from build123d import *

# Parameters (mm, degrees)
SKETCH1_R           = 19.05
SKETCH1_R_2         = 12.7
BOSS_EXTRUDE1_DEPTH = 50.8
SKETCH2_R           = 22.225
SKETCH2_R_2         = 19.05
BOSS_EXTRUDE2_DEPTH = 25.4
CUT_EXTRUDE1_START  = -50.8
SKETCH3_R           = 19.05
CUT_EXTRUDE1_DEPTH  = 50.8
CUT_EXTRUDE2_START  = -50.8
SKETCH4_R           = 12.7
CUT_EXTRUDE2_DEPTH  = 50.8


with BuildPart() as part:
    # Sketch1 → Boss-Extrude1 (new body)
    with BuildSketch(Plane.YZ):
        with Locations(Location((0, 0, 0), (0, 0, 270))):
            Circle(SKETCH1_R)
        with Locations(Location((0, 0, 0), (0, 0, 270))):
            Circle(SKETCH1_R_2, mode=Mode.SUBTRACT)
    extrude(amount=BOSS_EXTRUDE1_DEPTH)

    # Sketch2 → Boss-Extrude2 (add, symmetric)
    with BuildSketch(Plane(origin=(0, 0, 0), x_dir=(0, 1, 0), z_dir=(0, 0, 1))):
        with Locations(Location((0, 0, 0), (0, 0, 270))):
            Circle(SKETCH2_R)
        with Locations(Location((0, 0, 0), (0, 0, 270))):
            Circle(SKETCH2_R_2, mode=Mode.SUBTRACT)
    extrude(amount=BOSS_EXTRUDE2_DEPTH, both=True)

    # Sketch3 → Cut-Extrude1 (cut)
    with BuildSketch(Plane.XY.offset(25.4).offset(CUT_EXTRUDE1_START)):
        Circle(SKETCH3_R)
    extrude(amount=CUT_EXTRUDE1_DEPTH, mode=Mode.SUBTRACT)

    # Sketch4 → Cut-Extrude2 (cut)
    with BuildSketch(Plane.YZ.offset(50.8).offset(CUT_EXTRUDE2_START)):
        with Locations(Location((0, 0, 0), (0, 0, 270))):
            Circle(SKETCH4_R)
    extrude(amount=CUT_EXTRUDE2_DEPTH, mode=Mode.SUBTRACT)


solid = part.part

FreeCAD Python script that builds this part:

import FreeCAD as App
import Part
import Sketcher

V = App.Vector
Q = App.Units.Quantity

doc = App.newDocument("Part")
body = doc.addObject("PartDesign::Body", "Body")

# Sketch on YZ plane
sketch1 = body.newObject("Sketcher::SketchObject", "Sketch")
sketch1.AttachmentSupport = (doc.getObject("YZ_Plane"), [""])
sketch1.MapMode = "FlatFace"
sketch1.addGeometry([
    Part.Circle(V(0, 0, 0), V(0, 0, 1), 19),
    Part.Circle(V(0, 0, 0), V(0, 0, 1), 13),
], False)
sketch1.addConstraint([
    Sketcher.Constraint("Coincident", 0, 3, -1, 1),
    Sketcher.Constraint("Coincident", 1, 3, -1, 1),
    Sketcher.Constraint("Diameter", 1, Q("1 in")),
    Sketcher.Constraint("Diameter", 0, Q("1.5 in")),
])
pad1 = body.newObject("PartDesign::Pad", "Pad")
pad1.Profile = sketch1
pad1.Length = Q("2 in")

# Sketch on XY plane
sketch2 = body.newObject("Sketcher::SketchObject", "Sketch001")
sketch2.AttachmentSupport = (doc.getObject("XY_Plane"), [""])
sketch2.MapMode = "FlatFace"
sketch2.addGeometry([
    Part.Circle(V(0, 0, 0), V(0, 0, 1), 22),
    Part.Circle(V(0, 0, 0), V(0, 0, 1), 19),
], False)
sketch2.addConstraint([
    Sketcher.Constraint("Coincident", 0, 3, -1, 1),
    Sketcher.Constraint("Coincident", 1, 3, -1, 1),
    Sketcher.Constraint("Diameter", 1, Q("1.5 in")),
    Sketcher.Constraint("Diameter", 0, Q("1.75 in")),
])
pad2 = body.newObject("PartDesign::Pad", "Pad001")
pad2.Profile = sketch2
pad2.Length = Q("2 in")
pad2.Midplane = True

# Sketch on XY plane
sketch3 = body.newObject("Sketcher::SketchObject", "Sketch002")
sketch3.AttachmentSupport = (doc.getObject("XY_Plane"), [""])
sketch3.MapMode = "FlatFace"
sketch3.AttachmentOffset = App.Placement(V(0, 0, -1 * 25.4), App.Rotation())
sketch3.addGeometry(Part.Circle(V(0, 0, 0), V(0, 0, 1), 19), False)
sketch3.addConstraint([
    Sketcher.Constraint("Coincident", 0, 3, -1, 1),
    Sketcher.Constraint("Diameter", 0, Q("1.5 in")),
])
pocket1 = body.newObject("PartDesign::Pocket", "Pocket")
pocket1.Profile = sketch3
pocket1.Length = Q("2 in")
pocket1.Reversed = True

# Sketch on YZ plane
sketch4 = body.newObject("Sketcher::SketchObject", "Sketch003")
sketch4.AttachmentSupport = (doc.getObject("YZ_Plane"), [""])
sketch4.MapMode = "FlatFace"
sketch4.addGeometry(Part.Circle(V(0, 0, 0), V(0, 0, 1), 13), False)
sketch4.addConstraint([
    Sketcher.Constraint("Coincident", 0, 3, -1, 1),
    Sketcher.Constraint("Diameter", 0, Q("1 in")),
])
pocket2 = body.newObject("PartDesign::Pocket", "Pocket001")
pocket2.Profile = sketch4
pocket2.Length = Q("2 in")
pocket2.Reversed = True

doc.recompute()
